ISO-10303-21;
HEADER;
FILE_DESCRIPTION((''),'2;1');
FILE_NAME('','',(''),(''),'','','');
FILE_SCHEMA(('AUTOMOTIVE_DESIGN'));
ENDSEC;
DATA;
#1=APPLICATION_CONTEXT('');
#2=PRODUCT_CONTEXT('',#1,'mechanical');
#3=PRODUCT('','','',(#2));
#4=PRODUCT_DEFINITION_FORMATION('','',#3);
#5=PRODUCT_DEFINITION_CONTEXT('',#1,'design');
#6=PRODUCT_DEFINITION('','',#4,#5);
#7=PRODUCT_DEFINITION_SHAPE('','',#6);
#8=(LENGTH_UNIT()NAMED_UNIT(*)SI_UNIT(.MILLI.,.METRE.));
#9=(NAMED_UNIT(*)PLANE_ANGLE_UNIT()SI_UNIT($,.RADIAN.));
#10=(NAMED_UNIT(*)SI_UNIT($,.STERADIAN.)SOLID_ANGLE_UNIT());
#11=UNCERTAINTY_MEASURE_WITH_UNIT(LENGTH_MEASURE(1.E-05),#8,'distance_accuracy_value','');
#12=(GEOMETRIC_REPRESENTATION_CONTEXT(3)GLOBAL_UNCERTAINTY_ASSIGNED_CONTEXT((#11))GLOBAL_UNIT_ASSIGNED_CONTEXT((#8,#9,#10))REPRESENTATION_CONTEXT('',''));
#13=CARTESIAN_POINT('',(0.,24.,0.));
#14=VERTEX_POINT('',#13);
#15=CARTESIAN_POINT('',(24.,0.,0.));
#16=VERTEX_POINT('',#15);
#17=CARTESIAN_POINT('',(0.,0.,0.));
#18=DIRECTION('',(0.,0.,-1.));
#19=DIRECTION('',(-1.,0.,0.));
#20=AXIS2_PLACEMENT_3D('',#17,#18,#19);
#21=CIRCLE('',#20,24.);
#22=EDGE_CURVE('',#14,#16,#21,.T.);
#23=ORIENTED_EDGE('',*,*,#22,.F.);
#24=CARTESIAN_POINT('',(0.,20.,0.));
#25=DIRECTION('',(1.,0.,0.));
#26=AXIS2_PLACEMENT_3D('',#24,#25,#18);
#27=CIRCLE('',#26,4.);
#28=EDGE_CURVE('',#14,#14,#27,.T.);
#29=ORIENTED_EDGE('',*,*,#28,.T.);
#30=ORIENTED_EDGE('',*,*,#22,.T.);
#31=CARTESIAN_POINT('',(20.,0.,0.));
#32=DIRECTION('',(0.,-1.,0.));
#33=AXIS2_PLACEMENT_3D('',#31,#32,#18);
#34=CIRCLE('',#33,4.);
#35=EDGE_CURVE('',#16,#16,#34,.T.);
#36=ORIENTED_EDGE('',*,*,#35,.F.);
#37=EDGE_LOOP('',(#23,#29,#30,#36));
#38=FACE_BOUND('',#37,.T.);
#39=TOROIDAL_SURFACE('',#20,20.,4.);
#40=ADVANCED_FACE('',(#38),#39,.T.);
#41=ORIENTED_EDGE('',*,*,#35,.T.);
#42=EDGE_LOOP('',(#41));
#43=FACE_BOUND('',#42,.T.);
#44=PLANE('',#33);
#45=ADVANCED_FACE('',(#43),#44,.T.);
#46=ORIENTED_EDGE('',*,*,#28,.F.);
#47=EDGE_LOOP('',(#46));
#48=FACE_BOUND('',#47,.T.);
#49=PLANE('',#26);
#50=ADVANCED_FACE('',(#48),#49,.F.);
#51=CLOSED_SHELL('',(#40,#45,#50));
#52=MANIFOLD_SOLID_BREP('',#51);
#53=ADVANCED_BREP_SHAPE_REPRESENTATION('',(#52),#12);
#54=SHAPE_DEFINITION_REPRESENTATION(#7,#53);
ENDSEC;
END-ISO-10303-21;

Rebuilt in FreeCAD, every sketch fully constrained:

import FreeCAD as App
import Part
import Sketcher

V = App.Vector

doc = App.newDocument("Part")
body = doc.addObject("PartDesign::Body", "Body")

# Sketch on XZ plane
sketch1 = doc.addObject("Sketcher::SketchObject", "Sketch")
body.addObject(sketch1)
sketch1.AttachmentSupport = (doc.XZ_Plane, [""])
sketch1.MapMode = "FlatFace"
sketch1.addGeometry(Part.Circle(V(20, 0, 0), V(0, 0, 1), 4), False)
sketch1.addConstraint([
    Sketcher.Constraint("PointOnObject", 0, 3, -1),
    Sketcher.Constraint("Diameter", 0, 8.0),
    Sketcher.Constraint("DistanceX", -1, 1, 0, 3, 20.0),
])
revolution = doc.addObject("PartDesign::Revolution", "Revolution")
body.addObject(revolution)
revolution.Profile = sketch1
revolution.ReferenceAxis = (sketch1, ["V_Axis"])
revolution.Angle = 90

doc.recompute()
